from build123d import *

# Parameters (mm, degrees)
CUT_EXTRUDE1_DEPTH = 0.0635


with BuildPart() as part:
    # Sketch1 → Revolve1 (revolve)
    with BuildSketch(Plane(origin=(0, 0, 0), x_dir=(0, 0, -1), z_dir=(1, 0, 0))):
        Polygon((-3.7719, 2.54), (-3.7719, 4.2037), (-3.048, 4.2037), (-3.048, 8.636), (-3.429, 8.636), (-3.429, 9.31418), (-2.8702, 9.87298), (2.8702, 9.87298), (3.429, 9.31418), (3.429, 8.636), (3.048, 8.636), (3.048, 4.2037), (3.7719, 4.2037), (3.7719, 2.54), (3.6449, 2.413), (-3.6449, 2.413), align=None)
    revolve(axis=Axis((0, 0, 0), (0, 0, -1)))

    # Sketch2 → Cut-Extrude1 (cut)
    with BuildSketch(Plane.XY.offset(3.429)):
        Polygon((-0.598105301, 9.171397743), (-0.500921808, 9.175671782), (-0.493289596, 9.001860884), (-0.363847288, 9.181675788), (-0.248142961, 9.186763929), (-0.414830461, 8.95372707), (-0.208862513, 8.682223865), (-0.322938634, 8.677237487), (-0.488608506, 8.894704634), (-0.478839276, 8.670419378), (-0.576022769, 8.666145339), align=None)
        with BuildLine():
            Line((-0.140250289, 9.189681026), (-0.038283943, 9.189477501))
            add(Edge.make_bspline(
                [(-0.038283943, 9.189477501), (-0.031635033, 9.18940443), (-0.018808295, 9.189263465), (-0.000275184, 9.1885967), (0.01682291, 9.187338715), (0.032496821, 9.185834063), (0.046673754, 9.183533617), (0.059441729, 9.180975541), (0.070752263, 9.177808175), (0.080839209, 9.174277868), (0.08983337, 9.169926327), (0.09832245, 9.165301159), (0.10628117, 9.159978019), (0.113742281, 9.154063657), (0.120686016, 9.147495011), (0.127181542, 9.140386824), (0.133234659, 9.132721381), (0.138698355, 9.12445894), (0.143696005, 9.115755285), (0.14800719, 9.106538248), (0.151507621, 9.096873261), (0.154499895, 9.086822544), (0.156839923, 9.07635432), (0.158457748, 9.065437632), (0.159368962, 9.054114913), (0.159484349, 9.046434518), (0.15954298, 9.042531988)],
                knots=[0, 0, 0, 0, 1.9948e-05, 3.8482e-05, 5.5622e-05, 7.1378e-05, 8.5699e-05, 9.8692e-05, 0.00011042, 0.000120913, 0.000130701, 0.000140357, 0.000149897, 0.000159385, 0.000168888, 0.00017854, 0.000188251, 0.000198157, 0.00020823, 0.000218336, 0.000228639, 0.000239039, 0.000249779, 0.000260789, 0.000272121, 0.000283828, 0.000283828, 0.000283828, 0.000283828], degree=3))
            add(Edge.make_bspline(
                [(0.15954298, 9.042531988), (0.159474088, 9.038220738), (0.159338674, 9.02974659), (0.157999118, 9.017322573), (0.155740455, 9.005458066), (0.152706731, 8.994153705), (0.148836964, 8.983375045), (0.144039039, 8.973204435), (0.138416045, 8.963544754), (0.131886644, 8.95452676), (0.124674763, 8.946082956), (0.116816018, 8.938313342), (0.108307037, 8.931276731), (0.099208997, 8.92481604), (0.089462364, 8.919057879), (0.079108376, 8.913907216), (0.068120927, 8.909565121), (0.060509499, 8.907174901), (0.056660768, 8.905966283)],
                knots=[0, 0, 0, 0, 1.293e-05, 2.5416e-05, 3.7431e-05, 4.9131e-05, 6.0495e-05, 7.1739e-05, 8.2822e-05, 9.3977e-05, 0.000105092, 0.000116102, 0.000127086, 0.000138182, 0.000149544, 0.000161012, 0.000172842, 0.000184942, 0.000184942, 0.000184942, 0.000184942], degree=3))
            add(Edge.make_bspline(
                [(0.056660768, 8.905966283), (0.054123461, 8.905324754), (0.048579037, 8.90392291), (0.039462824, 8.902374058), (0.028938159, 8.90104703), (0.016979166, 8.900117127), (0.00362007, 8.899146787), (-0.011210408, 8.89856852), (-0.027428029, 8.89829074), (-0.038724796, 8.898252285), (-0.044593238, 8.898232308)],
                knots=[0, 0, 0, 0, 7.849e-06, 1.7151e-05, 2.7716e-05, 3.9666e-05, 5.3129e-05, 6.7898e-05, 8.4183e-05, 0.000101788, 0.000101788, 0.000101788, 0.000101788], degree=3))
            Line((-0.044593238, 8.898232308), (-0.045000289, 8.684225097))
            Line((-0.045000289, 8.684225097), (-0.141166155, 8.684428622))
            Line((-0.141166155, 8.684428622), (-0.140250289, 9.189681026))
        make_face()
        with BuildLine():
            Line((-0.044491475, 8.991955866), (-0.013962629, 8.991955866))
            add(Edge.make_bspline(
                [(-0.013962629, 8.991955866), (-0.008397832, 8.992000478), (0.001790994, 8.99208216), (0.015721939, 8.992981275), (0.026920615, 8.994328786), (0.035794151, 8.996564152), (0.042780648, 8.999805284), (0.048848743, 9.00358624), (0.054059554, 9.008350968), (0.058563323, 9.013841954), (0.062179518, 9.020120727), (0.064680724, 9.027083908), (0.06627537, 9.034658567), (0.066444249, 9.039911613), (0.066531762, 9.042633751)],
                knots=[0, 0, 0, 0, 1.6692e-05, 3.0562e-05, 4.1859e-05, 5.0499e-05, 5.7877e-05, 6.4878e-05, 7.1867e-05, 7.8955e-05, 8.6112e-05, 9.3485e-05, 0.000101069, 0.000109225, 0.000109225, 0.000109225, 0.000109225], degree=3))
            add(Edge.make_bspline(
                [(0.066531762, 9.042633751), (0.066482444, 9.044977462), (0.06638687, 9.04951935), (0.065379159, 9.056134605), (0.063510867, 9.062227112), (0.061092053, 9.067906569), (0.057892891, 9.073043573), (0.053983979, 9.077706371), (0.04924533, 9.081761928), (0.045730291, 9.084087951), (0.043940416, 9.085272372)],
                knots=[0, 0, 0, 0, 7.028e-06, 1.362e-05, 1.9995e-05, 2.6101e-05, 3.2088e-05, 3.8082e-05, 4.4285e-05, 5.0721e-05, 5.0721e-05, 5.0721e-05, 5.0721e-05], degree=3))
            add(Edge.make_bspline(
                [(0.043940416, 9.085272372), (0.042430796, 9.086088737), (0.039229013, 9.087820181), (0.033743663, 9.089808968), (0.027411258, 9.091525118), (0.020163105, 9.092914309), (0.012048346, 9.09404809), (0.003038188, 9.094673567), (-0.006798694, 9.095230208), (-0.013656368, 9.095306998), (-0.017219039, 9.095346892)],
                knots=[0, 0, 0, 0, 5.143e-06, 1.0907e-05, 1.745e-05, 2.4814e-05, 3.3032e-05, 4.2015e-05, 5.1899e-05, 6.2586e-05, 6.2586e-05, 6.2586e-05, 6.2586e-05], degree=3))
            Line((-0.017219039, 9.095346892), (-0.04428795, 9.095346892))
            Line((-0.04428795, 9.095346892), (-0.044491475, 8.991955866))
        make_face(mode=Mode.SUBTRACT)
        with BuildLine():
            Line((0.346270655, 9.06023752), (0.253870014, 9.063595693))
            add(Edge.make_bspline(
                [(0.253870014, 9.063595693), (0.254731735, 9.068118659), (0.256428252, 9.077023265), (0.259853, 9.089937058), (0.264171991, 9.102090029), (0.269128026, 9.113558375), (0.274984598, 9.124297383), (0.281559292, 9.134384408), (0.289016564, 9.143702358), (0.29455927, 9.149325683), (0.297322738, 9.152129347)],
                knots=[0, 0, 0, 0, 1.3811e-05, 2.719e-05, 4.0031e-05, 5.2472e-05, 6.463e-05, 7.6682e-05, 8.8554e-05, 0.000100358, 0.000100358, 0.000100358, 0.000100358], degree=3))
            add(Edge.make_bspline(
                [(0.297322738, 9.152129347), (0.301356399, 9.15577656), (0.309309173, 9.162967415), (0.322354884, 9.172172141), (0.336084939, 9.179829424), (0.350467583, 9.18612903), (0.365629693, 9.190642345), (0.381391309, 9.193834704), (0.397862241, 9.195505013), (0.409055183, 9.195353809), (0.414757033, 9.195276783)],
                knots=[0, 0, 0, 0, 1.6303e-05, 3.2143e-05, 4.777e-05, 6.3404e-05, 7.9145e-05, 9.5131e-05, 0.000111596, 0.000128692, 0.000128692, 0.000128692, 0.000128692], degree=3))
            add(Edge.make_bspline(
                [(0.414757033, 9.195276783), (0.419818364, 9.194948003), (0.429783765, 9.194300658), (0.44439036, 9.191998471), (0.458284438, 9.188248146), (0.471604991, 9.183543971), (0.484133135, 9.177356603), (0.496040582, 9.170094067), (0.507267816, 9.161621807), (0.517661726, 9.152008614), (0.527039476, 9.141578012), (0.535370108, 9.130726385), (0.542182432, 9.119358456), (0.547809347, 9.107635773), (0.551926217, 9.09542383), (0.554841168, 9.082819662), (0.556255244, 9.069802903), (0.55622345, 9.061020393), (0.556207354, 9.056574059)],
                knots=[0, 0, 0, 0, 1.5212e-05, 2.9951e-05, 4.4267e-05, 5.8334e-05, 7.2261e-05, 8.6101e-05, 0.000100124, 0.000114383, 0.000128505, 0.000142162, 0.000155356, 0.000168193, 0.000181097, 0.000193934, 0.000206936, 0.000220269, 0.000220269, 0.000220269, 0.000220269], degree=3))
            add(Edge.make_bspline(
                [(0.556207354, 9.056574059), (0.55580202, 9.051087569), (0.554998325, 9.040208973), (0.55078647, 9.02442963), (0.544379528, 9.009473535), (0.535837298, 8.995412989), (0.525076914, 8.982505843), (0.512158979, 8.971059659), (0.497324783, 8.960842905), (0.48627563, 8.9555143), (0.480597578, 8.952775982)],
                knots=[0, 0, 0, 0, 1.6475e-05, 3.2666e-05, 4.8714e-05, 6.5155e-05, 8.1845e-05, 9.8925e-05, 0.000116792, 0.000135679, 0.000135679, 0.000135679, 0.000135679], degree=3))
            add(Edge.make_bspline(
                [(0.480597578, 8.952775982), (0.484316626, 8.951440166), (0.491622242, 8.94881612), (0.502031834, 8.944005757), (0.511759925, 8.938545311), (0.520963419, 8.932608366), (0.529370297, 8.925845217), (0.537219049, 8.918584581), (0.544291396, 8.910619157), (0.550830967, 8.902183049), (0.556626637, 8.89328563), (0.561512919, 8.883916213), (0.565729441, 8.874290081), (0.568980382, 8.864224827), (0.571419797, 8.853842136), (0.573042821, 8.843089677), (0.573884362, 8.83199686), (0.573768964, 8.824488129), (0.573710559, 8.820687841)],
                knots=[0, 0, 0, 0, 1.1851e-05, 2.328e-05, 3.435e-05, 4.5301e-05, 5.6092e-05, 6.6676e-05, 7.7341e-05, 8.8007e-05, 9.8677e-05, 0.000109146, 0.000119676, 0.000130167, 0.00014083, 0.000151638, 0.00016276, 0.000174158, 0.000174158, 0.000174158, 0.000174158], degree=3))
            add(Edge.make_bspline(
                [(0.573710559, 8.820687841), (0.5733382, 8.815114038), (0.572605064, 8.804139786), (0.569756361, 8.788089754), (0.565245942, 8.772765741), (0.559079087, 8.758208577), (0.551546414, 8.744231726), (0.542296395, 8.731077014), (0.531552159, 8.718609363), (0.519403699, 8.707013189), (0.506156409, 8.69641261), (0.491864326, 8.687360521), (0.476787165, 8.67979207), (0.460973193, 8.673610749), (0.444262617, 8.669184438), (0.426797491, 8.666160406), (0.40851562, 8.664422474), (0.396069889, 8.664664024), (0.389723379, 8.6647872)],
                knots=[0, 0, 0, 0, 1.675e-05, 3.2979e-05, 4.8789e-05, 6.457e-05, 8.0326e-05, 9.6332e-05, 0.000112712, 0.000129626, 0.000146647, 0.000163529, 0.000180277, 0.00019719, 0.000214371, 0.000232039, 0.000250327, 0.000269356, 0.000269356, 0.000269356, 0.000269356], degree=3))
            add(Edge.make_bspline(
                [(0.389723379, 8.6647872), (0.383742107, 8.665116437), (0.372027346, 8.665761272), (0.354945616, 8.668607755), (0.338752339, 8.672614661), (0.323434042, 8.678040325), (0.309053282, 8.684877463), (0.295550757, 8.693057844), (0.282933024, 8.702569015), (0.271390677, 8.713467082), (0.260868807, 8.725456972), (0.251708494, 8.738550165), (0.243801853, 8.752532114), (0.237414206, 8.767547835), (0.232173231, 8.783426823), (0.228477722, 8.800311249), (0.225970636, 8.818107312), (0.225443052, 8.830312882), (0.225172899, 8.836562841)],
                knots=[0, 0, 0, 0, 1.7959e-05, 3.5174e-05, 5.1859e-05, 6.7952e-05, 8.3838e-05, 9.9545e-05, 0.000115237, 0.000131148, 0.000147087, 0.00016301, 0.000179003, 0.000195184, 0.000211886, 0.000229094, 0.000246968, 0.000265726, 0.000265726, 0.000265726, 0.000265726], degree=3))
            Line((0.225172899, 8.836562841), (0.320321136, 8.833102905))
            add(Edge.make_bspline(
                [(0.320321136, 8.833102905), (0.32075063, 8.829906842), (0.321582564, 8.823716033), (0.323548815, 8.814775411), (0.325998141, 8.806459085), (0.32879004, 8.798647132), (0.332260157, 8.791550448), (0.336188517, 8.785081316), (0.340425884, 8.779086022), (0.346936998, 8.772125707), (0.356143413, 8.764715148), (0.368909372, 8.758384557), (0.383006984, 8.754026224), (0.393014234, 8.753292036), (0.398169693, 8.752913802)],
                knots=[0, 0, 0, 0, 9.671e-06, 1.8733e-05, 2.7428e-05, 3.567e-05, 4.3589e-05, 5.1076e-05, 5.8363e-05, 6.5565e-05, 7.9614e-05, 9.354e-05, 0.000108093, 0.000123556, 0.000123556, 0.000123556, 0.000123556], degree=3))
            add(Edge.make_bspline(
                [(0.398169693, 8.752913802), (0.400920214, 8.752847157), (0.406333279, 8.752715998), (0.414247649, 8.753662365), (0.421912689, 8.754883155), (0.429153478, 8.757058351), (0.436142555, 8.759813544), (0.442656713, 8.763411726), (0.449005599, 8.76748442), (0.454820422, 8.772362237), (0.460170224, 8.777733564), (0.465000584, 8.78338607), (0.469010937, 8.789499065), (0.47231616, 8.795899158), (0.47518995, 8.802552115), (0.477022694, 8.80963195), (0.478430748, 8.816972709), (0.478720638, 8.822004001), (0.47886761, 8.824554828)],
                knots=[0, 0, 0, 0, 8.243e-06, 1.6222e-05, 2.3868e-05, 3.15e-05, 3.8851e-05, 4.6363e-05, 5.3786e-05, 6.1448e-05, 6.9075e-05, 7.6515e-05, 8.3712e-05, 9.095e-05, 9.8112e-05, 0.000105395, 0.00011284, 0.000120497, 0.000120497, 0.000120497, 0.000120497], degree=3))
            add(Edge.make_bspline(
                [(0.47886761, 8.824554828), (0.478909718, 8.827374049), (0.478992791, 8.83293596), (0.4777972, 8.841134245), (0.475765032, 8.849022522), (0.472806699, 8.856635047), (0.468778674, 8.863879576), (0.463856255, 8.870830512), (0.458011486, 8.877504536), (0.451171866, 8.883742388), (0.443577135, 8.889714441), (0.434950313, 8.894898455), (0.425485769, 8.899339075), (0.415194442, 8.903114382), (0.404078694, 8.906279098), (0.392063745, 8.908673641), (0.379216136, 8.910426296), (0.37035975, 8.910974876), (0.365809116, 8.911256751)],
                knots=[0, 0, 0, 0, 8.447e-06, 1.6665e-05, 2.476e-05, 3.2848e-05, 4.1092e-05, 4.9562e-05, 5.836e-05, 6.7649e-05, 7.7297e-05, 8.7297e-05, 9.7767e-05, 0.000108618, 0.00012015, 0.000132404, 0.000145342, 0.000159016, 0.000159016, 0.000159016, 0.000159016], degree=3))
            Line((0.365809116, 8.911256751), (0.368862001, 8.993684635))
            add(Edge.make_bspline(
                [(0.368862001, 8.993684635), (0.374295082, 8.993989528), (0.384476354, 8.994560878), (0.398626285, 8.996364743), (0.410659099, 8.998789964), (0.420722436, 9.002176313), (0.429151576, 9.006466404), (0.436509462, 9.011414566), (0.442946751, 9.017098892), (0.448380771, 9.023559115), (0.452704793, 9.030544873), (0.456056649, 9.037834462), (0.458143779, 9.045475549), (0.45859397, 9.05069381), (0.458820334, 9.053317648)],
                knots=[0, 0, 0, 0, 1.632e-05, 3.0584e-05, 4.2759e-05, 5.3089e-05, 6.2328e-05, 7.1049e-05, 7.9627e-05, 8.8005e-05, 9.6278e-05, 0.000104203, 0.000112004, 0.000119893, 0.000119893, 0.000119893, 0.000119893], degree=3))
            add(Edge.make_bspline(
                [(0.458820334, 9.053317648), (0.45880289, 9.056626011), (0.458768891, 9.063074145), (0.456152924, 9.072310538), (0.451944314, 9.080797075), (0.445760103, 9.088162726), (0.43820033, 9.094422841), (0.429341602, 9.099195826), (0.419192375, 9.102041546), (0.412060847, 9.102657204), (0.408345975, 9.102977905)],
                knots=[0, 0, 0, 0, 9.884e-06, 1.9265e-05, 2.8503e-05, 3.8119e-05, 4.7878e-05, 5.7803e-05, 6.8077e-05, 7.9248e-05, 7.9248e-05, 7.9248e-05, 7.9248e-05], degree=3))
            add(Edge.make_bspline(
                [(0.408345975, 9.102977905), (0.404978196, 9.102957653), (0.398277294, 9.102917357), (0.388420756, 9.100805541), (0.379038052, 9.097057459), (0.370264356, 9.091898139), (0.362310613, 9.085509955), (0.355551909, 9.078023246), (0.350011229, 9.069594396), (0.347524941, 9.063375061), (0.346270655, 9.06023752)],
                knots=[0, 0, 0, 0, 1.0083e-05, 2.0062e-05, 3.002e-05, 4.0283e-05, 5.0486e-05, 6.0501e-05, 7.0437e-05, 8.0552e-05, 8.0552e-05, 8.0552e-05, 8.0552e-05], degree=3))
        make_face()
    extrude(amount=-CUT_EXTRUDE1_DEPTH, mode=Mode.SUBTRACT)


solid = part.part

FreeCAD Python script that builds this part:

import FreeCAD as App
import Part
import Sketcher
Q = App.Units.Quantity


def add_polygon(sketch, points):
    """Adds a closed chain of lines whose ends are joined by coincident constraints."""
    first, n = sketch.GeometryCount, len(points)
    for a, b in zip(points, points[1:] + points[:1]):
        sketch.addGeometry(Part.LineSegment(App.Vector(*a, 0), App.Vector(*b, 0)), False)
    for i in range(n):
        sketch.addConstraint(Sketcher.Constraint("Coincident", first + i, 2, first + (i + 1) % n, 1))

doc = App.newDocument("Part")
body = doc.addObject("PartDesign::Body", "Body")

sketch1 = body.newObject("Sketcher::SketchObject", "Sketch")
sketch1.AttachmentSupport = (doc.getObject("YZ_Plane"), [""])
sketch1.MapMode = "FlatFace"
add_polygon(sketch1, [(4.2, 3.77), (2.54, 3.77), (2.41, 3.64), (2.41, -3.64), (2.54, -3.77), (4.2, -3.77), (4.2, -3.05), (8.64, -3.05), (8.64, -3.43), (9.31, -3.43), (9.87, -2.87), (9.87, 2.87), (9.31, 3.43), (8.64, 3.43), (8.64, 3.05), (4.2, 3.05)])
sketch1.addConstraint([
    Sketcher.Constraint("Horizontal", 0),
    Sketcher.Constraint("Vertical", 2),
    Sketcher.Constraint("Horizontal", 4),
    Sketcher.Constraint("Vertical", 5),
    Sketcher.Constraint("Horizontal", 6),
    Sketcher.Constraint("Vertical", 7),
    Sketcher.Constraint("Horizontal", 8),
    Sketcher.Constraint("Vertical", 10),
    Sketcher.Constraint("Horizontal", 12),
    Sketcher.Constraint("Vertical", 13),
    Sketcher.Constraint("Horizontal", 14),
    Sketcher.Constraint("Vertical", 15),
    Sketcher.Constraint("Symmetric", 0, 2, 3, 2, -1),
    Sketcher.Constraint("Symmetric", 8, 2, 11, 2, -1),
    Sketcher.Constraint("Symmetric", 6, 2, 13, 2, -1),
    Sketcher.Constraint("Perpendicular", 1, 3),
    Sketcher.Constraint("Perpendicular", 3, 9),
    Sketcher.Constraint("Perpendicular", 9, 11),
    Sketcher.Constraint("Vertical", 5, 2, 14, 2),
    Sketcher.Constraint("Equal", 1, 3),
    Sketcher.Constraint("DistanceX", -1, 1, 0, 2, Q("0.1 in")),
    Sketcher.Constraint("DistanceY", 2, 2, 2, 1, Q("0.287 in")),
    Sketcher.Constraint("DistanceY", 7, 2, 7, 1, Q("0.015 in")),
    Sketcher.Constraint("DistanceY", 10, 1, 10, 2, Q("0.226 in")),
    Sketcher.Constraint("DistanceY", 5, 2, -1, 1, Q("0.12 in")),
    Sketcher.Constraint("DistanceX", -1, 1, 6, 2, Q("0.34 in")),
    Sketcher.Constraint("DistanceX", 0, 2, 0, 1, Q("0.0655 in")),
    Sketcher.Constraint("DistanceX", 8, 1, 8, 2, Q("0.0267 in")),
    Sketcher.Constraint("DistanceY", 5, 1, 5, 2, Q("0.0285 in")),
])
revolution = body.newObject("PartDesign::Revolution", "Revolution")
revolution.Profile = sketch1
revolution.ReferenceAxis = (sketch1, ["V_Axis"])
revolution.Angle = 360

sketch2 = body.newObject("Sketcher::SketchObject", "Sketch001")
sketch2.AttachmentSupport = (doc.getObject("XY_Plane"), [""])
sketch2.MapMode = "FlatFace"
sketch2.AttachmentOffset = App.Placement(App.Vector(0, 0, 0.135 * 25.4), App.Rotation())
add_polygon(sketch2, [(-0.500922, 9.175672), (-0.598105, 9.171398), (-0.576023, 8.666145), (-0.478839, 8.670419), (-0.488609, 8.894705), (-0.322939, 8.677237), (-0.208863, 8.682224), (-0.41483, 8.953727), (-0.248143, 9.186764), (-0.363847, 9.181676), (-0.49329, 9.001861)])
sketch2.addGeometry(Part.LineSegment(App.Vector(-0.038284, 9.189478, 0), App.Vector(-0.14025, 9.189681, 0)), False)
sketch2.addGeometry(Part.LineSegment(App.Vector(-0.14025, 9.189681, 0), App.Vector(-0.141166, 8.684429, 0)), False)
sketch2.addGeometry(Part.LineSegment(App.Vector(-0.141166, 8.684429, 0), App.Vector(-0.045, 8.684225, 0)), False)
sketch2.addGeometry(Part.LineSegment(App.Vector(-0.045, 8.684225, 0), App.Vector(-0.044593, 8.898232, 0)), False)
sketch2.addGeometry(Part.BSplineCurve([App.Vector(0.056661, 8.905966, 0), App.Vector(0.054123, 8.905325, 0), App.Vector(0.048579, 8.903923, 0), App.Vector(0.039463, 8.902374, 0), App.Vector(0.028938, 8.901047, 0), App.Vector(0.016979, 8.900117, 0), App.Vector(0.00362, 8.899147, 0), App.Vector(-0.01121, 8.898569, 0), App.Vector(-0.027428, 8.898291, 0), App.Vector(-0.038725, 8.898252, 0), App.Vector(-0.044593, 8.898232, 0)], [4, 1, 1, 1, 1, 1, 1, 1, 4], [0, 0.000007849, 0.000017151, 0.000027716, 0.000039666, 0.000053129, 0.000067898, 0.000084183, 0.000101788], False, 3, [1, 1, 1, 1, 1, 1, 1, 1, 1, 1, 1], False), False)
sketch2.addGeometry(Part.BSplineCurve([App.Vector(0.159543, 9.042532, 0), App.Vector(0.159474, 9.038221, 0), App.Vector(0.159339, 9.029747, 0), App.Vector(0.157999, 9.017323, 0), App.Vector(0.15574, 9.005458, 0), App.Vector(0.152707, 8.994154, 0), App.Vector(0.148837, 8.983375, 0), App.Vector(0.144039, 8.973204, 0), App.Vector(0.138416, 8.963545, 0), App.Vector(0.131887, 8.954527, 0), App.Vector(0.124675, 8.946083, 0), App.Vector(0.116816, 8.938313, 0), App.Vector(0.108307, 8.931277, 0), App.Vector(0.099209, 8.924816, 0), App.Vector(0.089462, 8.919058, 0), App.Vector(0.079108, 8.913907, 0), App.Vector(0.068121, 8.909565, 0), App.Vector(0.060509, 8.907175, 0), App.Vector(0.056661, 8.905966, 0)], [4, 1, 1, 1, 1, 1, 1, 1, 1, 1, 1, 1, 1, 1, 1, 1, 4], [0, 0.00001293, 0.000025416, 0.000037431, 0.000049131, 0.000060495, 0.000071739, 0.000082822, 0.000093977, 0.000105092, 0.000116102, 0.000127086, 0.000138182, 0.000149544, 0.000161012, 0.000172842, 0.000184942], False, 3, [1, 1, 1, 1, 1, 1, 1, 1, 1, 1, 1, 1, 1, 1, 1, 1, 1, 1, 1], False), False)
sketch2.addGeometry(Part.BSplineCurve([App.Vector(-0.038284, 9.189478, 0), App.Vector(-0.031635, 9.189404, 0), App.Vector(-0.018808, 9.189263, 0), App.Vector(-0.000275, 9.188597, 0), App.Vector(0.016823, 9.187339, 0), App.Vector(0.032497, 9.185834, 0), App.Vector(0.046674, 9.183534, 0), App.Vector(0.059442, 9.180976, 0), App.Vector(0.070752, 9.177808, 0), App.Vector(0.080839, 9.174278, 0), App.Vector(0.089833, 9.169926, 0), App.Vector(0.098322, 9.165301, 0), App.Vector(0.106281, 9.159978, 0), App.Vector(0.113742, 9.154064, 0), App.Vector(0.120686, 9.147495, 0), App.Vector(0.127182, 9.140387, 0), App.Vector(0.133235, 9.132721, 0), App.Vector(0.138698, 9.124459, 0), App.Vector(0.143696, 9.115755, 0), App.Vector(0.148007, 9.106538, 0), App.Vector(0.151508, 9.096873, 0), App.Vector(0.1545, 9.086823, 0), App.Vector(0.15684, 9.076354, 0), App.Vector(0.158458, 9.065438, 0), App.Vector(0.159369, 9.054115, 0), App.Vector(0.159484, 9.046435, 0), App.Vector(0.159543, 9.042532, 0)], [4, 1, 1, 1, 1, 1, 1, 1, 1, 1, 1, 1, 1, 1, 1, 1, 1, 1, 1, 1, 1, 1, 1, 1, 4], [0, 0.000019948, 0.000038482, 0.000055622, 0.000071378, 0.000085699, 0.000098692, 0.00011042, 0.000120913, 0.000130701, 0.000140357, 0.000149897, 0.000159385, 0.000168888, 0.00017854, 0.000188251, 0.000198157, 0.00020823, 0.000218336, 0.000228639, 0.000239039, 0.000249779, 0.000260789, 0.000272121, 0.000283828], False, 3, [1, 1, 1, 1, 1, 1, 1, 1, 1, 1, 1, 1, 1, 1, 1, 1, 1, 1, 1, 1, 1, 1, 1, 1, 1, 1, 1], False), False)
sketch2.addGeometry(Part.LineSegment(App.Vector(-0.044491, 8.991956, 0), App.Vector(-0.044288, 9.095347, 0)), False)
sketch2.addGeometry(Part.LineSegment(App.Vector(-0.044288, 9.095347, 0), App.Vector(-0.017219, 9.095347, 0)), False)
sketch2.addGeometry(Part.BSplineCurve([App.Vector(0.04394, 9.085272, 0), App.Vector(0.042431, 9.086089, 0), App.Vector(0.039229, 9.08782, 0), App.Vector(0.033744, 9.089809, 0), App.Vector(0.027411, 9.091525, 0), App.Vector(0.020163, 9.092914, 0), App.Vector(0.012048, 9.094048, 0), App.Vector(0.003038, 9.094674, 0), App.Vector(-0.006799, 9.09523, 0), App.Vector(-0.013656, 9.095307, 0), App.Vector(-0.017219, 9.095347, 0)], [4, 1, 1, 1, 1, 1, 1, 1, 4], [0, 0.000005143, 0.000010907, 0.00001745, 0.000024814, 0.000033032, 0.000042015, 0.000051899, 0.000062586], False, 3, [1, 1, 1, 1, 1, 1, 1, 1, 1, 1, 1], False), False)
sketch2.addGeometry(Part.BSplineCurve([App.Vector(0.066532, 9.042634, 0), App.Vector(0.066482, 9.044977, 0), App.Vector(0.066387, 9.049519, 0), App.Vector(0.065379, 9.056135, 0), App.Vector(0.063511, 9.062227, 0), App.Vector(0.061092, 9.067907, 0), App.Vector(0.057893, 9.073044, 0), App.Vector(0.053984, 9.077706, 0), App.Vector(0.049245, 9.081762, 0), App.Vector(0.04573, 9.084088, 0), App.Vector(0.04394, 9.085272, 0)], [4, 1, 1, 1, 1, 1, 1, 1, 4], [0, 0.000007028, 0.00001362, 0.000019995, 0.000026101, 0.000032088, 0.000038082, 0.000044285, 0.000050721], False, 3, [1, 1, 1, 1, 1, 1, 1, 1, 1, 1, 1], False), False)
sketch2.addGeometry(Part.BSplineCurve([App.Vector(-0.013963, 8.991956, 0), App.Vector(-0.008398, 8.992, 0), App.Vector(0.001791, 8.992082, 0), App.Vector(0.015722, 8.992981, 0), App.Vector(0.026921, 8.994329, 0), App.Vector(0.035794, 8.996564, 0), App.Vector(0.042781, 8.999805, 0), App.Vector(0.048849, 9.003586, 0), App.Vector(0.05406, 9.008351, 0), App.Vector(0.058563, 9.013842, 0), App.Vector(0.06218, 9.020121, 0), App.Vector(0.064681, 9.027084, 0), App.Vector(0.066275, 9.034659, 0), App.Vector(0.066444, 9.039912, 0), App.Vector(0.066532, 9.042634, 0)], [4, 1, 1, 1, 1, 1, 1, 1, 1, 1, 1, 1, 4], [0, 0.000016692, 0.000030562, 0.000041859, 0.000050499, 0.000057877, 0.000064878, 0.000071867, 0.000078955, 0.000086112, 0.000093485, 0.000101069, 0.000109225], False, 3, [1, 1, 1, 1, 1, 1, 1, 1, 1, 1, 1, 1, 1, 1, 1], False), False)
sketch2.addGeometry(Part.LineSegment(App.Vector(-0.013963, 8.991956, 0), App.Vector(-0.044491, 8.991956, 0)), False)
sketch2.addGeometry(Part.LineSegment(App.Vector(0.25387, 9.063596, 0), App.Vector(0.346271, 9.060238, 0)), False)
sketch2.addGeometry(Part.BSplineCurve([App.Vector(0.408346, 9.102978, 0), App.Vector(0.404978, 9.102958, 0), App.Vector(0.398277, 9.102917, 0), App.Vector(0.388421, 9.100806, 0), App.Vector(0.379038, 9.097057, 0), App.Vector(0.370264, 9.091898, 0), App.Vector(0.362311, 9.08551, 0), App.Vector(0.355552, 9.078023, 0), App.Vector(0.350011, 9.069594, 0), App.Vector(0.347525, 9.063375, 0), App.Vector(0.346271, 9.060238, 0)], [4, 1, 1, 1, 1, 1, 1, 1, 4], [0, 0.000010083, 0.000020062, 0.00003002, 0.000040283, 0.000050486, 0.000060501, 0.000070437, 0.000080552], False, 3, [1, 1, 1, 1, 1, 1, 1, 1, 1, 1, 1], False), False)
sketch2.addGeometry(Part.BSplineCurve([App.Vector(0.45882, 9.053318, 0), App.Vector(0.458803, 9.056626, 0), App.Vector(0.458769, 9.063074, 0), App.Vector(0.456153, 9.072311, 0), App.Vector(0.451944, 9.080797, 0), App.Vector(0.44576, 9.088163, 0), App.Vector(0.4382, 9.094423, 0), App.Vector(0.429342, 9.099196, 0), App.Vector(0.419192, 9.102042, 0), App.Vector(0.412061, 9.102657, 0), App.Vector(0.408346, 9.102978, 0)], [4, 1, 1, 1, 1, 1, 1, 1, 4], [0, 0.000009884, 0.000019265, 0.000028503, 0.000038119, 0.000047878, 0.000057803, 0.000068077, 0.000079248], False, 3, [1, 1, 1, 1, 1, 1, 1, 1, 1, 1, 1], False), False)
sketch2.addGeometry(Part.BSplineCurve([App.Vector(0.368862, 8.993685, 0), App.Vector(0.374295, 8.99399, 0), App.Vector(0.384476, 8.994561, 0), App.Vector(0.398626, 8.996365, 0), App.Vector(0.410659, 8.99879, 0), App.Vector(0.420722, 9.002176, 0), App.Vector(0.429152, 9.006466, 0), App.Vector(0.436509, 9.011415, 0), App.Vector(0.442947, 9.017099, 0), App.Vector(0.448381, 9.023559, 0), App.Vector(0.452705, 9.030545, 0), App.Vector(0.456057, 9.037834, 0), App.Vector(0.458144, 9.045476, 0), App.Vector(0.458594, 9.050694, 0), App.Vector(0.45882, 9.053318, 0)], [4, 1, 1, 1, 1, 1, 1, 1, 1, 1, 1, 1, 4], [0, 0.00001632, 0.000030584, 0.000042759, 0.000053089, 0.000062328, 0.000071049, 0.000079627, 0.000088005, 0.000096278, 0.000104203, 0.000112004, 0.000119893], False, 3, [1, 1, 1, 1, 1, 1, 1, 1, 1, 1, 1, 1, 1, 1, 1], False), False)
sketch2.addGeometry(Part.LineSegment(App.Vector(0.368862, 8.993685, 0), App.Vector(0.365809, 8.911257, 0)), False)
sketch2.addGeometry(Part.BSplineCurve([App.Vector(0.478868, 8.824555, 0), App.Vector(0.47891, 8.827374, 0), App.Vector(0.478993, 8.832936, 0), App.Vector(0.477797, 8.841134, 0), App.Vector(0.475765, 8.849023, 0), App.Vector(0.472807, 8.856635, 0), App.Vector(0.468779, 8.86388, 0), App.Vector(0.463856, 8.870831, 0), App.Vector(0.458011, 8.877505, 0), App.Vector(0.451172, 8.883742, 0), App.Vector(0.443577, 8.889714, 0), App.Vector(0.43495, 8.894898, 0), App.Vector(0.425486, 8.899339, 0), App.Vector(0.415194, 8.903114, 0), App.Vector(0.404079, 8.906279, 0), App.Vector(0.392064, 8.908674, 0), App.Vector(0.379216, 8.910426, 0), App.Vector(0.37036, 8.910975, 0), App.Vector(0.365809, 8.911257, 0)], [4, 1, 1, 1, 1, 1, 1, 1, 1, 1, 1, 1, 1, 1, 1, 1, 4], [0, 0.000008447, 0.000016665, 0.00002476, 0.000032848, 0.000041092, 0.000049562, 0.00005836, 0.000067649, 0.000077297, 0.000087297, 0.000097767, 0.000108618, 0.00012015, 0.000132404, 0.000145342, 0.000159016], False, 3, [1, 1, 1, 1, 1, 1, 1, 1, 1, 1, 1, 1, 1, 1, 1, 1, 1, 1, 1], False), False)
sketch2.addGeometry(Part.BSplineCurve([App.Vector(0.39817, 8.752914, 0), App.Vector(0.40092, 8.752847, 0), App.Vector(0.406333, 8.752716, 0), App.Vector(0.414248, 8.753662, 0), App.Vector(0.421913, 8.754883, 0), App.Vector(0.429153, 8.757058, 0), App.Vector(0.436143, 8.759814, 0), App.Vector(0.442657, 8.763412, 0), App.Vector(0.449006, 8.767484, 0), App.Vector(0.45482, 8.772362, 0), App.Vector(0.46017, 8.777734, 0), App.Vector(0.465001, 8.783386, 0), App.Vector(0.469011, 8.789499, 0), App.Vector(0.472316, 8.795899, 0), App.Vector(0.47519, 8.802552, 0), App.Vector(0.477023, 8.809632, 0), App.Vector(0.478431, 8.816973, 0), App.Vector(0.478721, 8.822004, 0), App.Vector(0.478868, 8.824555, 0)], [4, 1, 1, 1, 1, 1, 1, 1, 1, 1, 1, 1, 1, 1, 1, 1, 4], [0, 0.000008243, 0.000016222, 0.000023868, 0.0000315, 0.000038851, 0.000046363, 0.000053786, 0.000061448, 0.000069075, 0.000076515, 0.000083712, 0.00009095, 0.000098112, 0.000105395, 0.00011284, 0.000120497], False, 3, [1, 1, 1, 1, 1, 1, 1, 1, 1, 1, 1, 1, 1, 1, 1, 1, 1, 1, 1], False), False)
sketch2.addGeometry(Part.BSplineCurve([App.Vector(0.320321, 8.833103, 0), App.Vector(0.320751, 8.829907, 0), App.Vector(0.321583, 8.823716, 0), App.Vector(0.323549, 8.814775, 0), App.Vector(0.325998, 8.806459, 0), App.Vector(0.32879, 8.798647, 0), App.Vector(0.33226, 8.79155, 0), App.Vector(0.336189, 8.785081, 0), App.Vector(0.340426, 8.779086, 0), App.Vector(0.346937, 8.772126, 0), App.Vector(0.356143, 8.764715, 0), App.Vector(0.368909, 8.758385, 0), App.Vector(0.383007, 8.754026, 0), App.Vector(0.393014, 8.753292, 0), App.Vector(0.39817, 8.752914, 0)], [4, 1, 1, 1, 1, 1, 1, 1, 1, 1, 1, 1, 4], [0, 0.000009671, 0.000018733, 0.000027428, 0.00003567, 0.000043589, 0.000051076, 0.000058363, 0.000065565, 0.000079614, 0.00009354, 0.000108093, 0.000123556], False, 3, [1, 1, 1, 1, 1, 1, 1, 1, 1, 1, 1, 1, 1, 1, 1], False), False)
sketch2.addGeometry(Part.LineSegment(App.Vector(0.320321, 8.833103, 0), App.Vector(0.225173, 8.836563, 0)), False)
sketch2.addGeometry(Part.BSplineCurve([App.Vector(0.389723, 8.664787, 0), App.Vector(0.383742, 8.665116, 0), App.Vector(0.372027, 8.665761, 0), App.Vector(0.354946, 8.668608, 0), App.Vector(0.338752, 8.672615, 0), App.Vector(0.323434, 8.67804, 0), App.Vector(0.309053, 8.684877, 0), App.Vector(0.295551, 8.693058, 0), App.Vector(0.282933, 8.702569, 0), App.Vector(0.271391, 8.713467, 0), App.Vector(0.260869, 8.725457, 0), App.Vector(0.251708, 8.73855, 0), App.Vector(0.243802, 8.752532, 0), App.Vector(0.237414, 8.767548, 0), App.Vector(0.232173, 8.783427, 0), App.Vector(0.228478, 8.800311, 0), App.Vector(0.225971, 8.818107, 0), App.Vector(0.225443, 8.830313, 0), App.Vector(0.225173, 8.836563, 0)], [4, 1, 1, 1, 1, 1, 1, 1, 1, 1, 1, 1, 1, 1, 1, 1, 4], [0, 0.000017959, 0.000035174, 0.000051859, 0.000067952, 0.000083838, 0.000099545, 0.000115237, 0.000131148, 0.000147087, 0.00016301, 0.000179003, 0.000195184, 0.000211886, 0.000229094, 0.000246968, 0.000265726], False, 3, [1, 1, 1, 1, 1, 1, 1, 1, 1, 1, 1, 1, 1, 1, 1, 1, 1, 1, 1], False), False)
sketch2.addGeometry(Part.BSplineCurve([App.Vector(0.573711, 8.820688, 0), App.Vector(0.573338, 8.815114, 0), App.Vector(0.572605, 8.80414, 0), App.Vector(0.569756, 8.78809, 0), App.Vector(0.565246, 8.772766, 0), App.Vector(0.559079, 8.758209, 0), App.Vector(0.551546, 8.744232, 0), App.Vector(0.542296, 8.731077, 0), App.Vector(0.531552, 8.718609, 0), App.Vector(0.519404, 8.707013, 0), App.Vector(0.506156, 8.696413, 0), App.Vector(0.491864, 8.687361, 0), App.Vector(0.476787, 8.679792, 0), App.Vector(0.460973, 8.673611, 0), App.Vector(0.444263, 8.669184, 0), App.Vector(0.426797, 8.66616, 0), App.Vector(0.408516, 8.664422, 0), App.Vector(0.39607, 8.664664, 0), App.Vector(0.389723, 8.664787, 0)], [4, 1, 1, 1, 1, 1, 1, 1, 1, 1, 1, 1, 1, 1, 1, 1, 4], [0, 0.00001675, 0.000032979, 0.000048789, 0.00006457, 0.000080326, 0.000096332, 0.000112712, 0.000129626, 0.000146647, 0.000163529, 0.000180277, 0.00019719, 0.000214371, 0.000232039, 0.000250327, 0.000269356], False, 3, [1, 1, 1, 1, 1, 1, 1, 1, 1, 1, 1, 1, 1, 1, 1, 1, 1, 1, 1], False), False)
sketch2.addGeometry(Part.BSplineCurve([App.Vector(0.480598, 8.952776, 0), App.Vector(0.484317, 8.95144, 0), App.Vector(0.491622, 8.948816, 0), App.Vector(0.502032, 8.944006, 0), App.Vector(0.51176, 8.938545, 0), App.Vector(0.520963, 8.932608, 0), App.Vector(0.52937, 8.925845, 0), App.Vector(0.537219, 8.918585, 0), App.Vector(0.544291, 8.910619, 0), App.Vector(0.550831, 8.902183, 0), App.Vector(0.556627, 8.893286, 0), App.Vector(0.561513, 8.883916, 0), App.Vector(0.565729, 8.87429, 0), App.Vector(0.56898, 8.864225, 0), App.Vector(0.57142, 8.853842, 0), App.Vector(0.573043, 8.84309, 0), App.Vector(0.573884, 8.831997, 0), App.Vector(0.573769, 8.824488, 0), App.Vector(0.573711, 8.820688, 0)], [4, 1, 1, 1, 1, 1, 1, 1, 1, 1, 1, 1, 1, 1, 1, 1, 4], [0, 0.000011851, 0.00002328, 0.00003435, 0.000045301, 0.000056092, 0.000066676, 0.000077341, 0.000088007, 0.000098677, 0.000109146, 0.000119676, 0.000130167, 0.00014083, 0.000151638, 0.00016276, 0.000174158], False, 3, [1, 1, 1, 1, 1, 1, 1, 1, 1, 1, 1, 1, 1, 1, 1, 1, 1, 1, 1], False), False)
sketch2.addGeometry(Part.BSplineCurve([App.Vector(0.556207, 9.056574, 0), App.Vector(0.555802, 9.051088, 0), App.Vector(0.554998, 9.040209, 0), App.Vector(0.550786, 9.02443, 0), App.Vector(0.54438, 9.009474, 0), App.Vector(0.535837, 8.995413, 0), App.Vector(0.525077, 8.982506, 0), App.Vector(0.512159, 8.97106, 0), App.Vector(0.497325, 8.960843, 0), App.Vector(0.486276, 8.955514, 0), App.Vector(0.480598, 8.952776, 0)], [4, 1, 1, 1, 1, 1, 1, 1, 4], [0, 0.000016475, 0.000032666, 0.000048714, 0.000065155, 0.000081845, 0.000098925, 0.000116792, 0.000135679], False, 3, [1, 1, 1, 1, 1, 1, 1, 1, 1, 1, 1], False), False)
sketch2.addGeometry(Part.BSplineCurve([App.Vector(0.414757, 9.195277, 0), App.Vector(0.419818, 9.194948, 0), App.Vector(0.429784, 9.194301, 0), App.Vector(0.44439, 9.191998, 0), App.Vector(0.458284, 9.188248, 0), App.Vector(0.471605, 9.183544, 0), App.Vector(0.484133, 9.177357, 0), App.Vector(0.496041, 9.170094, 0), App.Vector(0.507268, 9.161622, 0), App.Vector(0.517662, 9.152009, 0), App.Vector(0.527039, 9.141578, 0), App.Vector(0.53537, 9.130726, 0), App.Vector(0.542182, 9.119358, 0), App.Vector(0.547809, 9.107636, 0), App.Vector(0.551926, 9.095424, 0), App.Vector(0.554841, 9.08282, 0), App.Vector(0.556255, 9.069803, 0), App.Vector(0.556223, 9.06102, 0), App.Vector(0.556207, 9.056574, 0)], [4, 1, 1, 1, 1, 1, 1, 1, 1, 1, 1, 1, 1, 1, 1, 1, 4], [0, 0.000015212, 0.000029951, 0.000044267, 0.000058334, 0.000072261, 0.000086101, 0.000100124, 0.000114383, 0.000128505, 0.000142162, 0.000155356, 0.000168193, 0.000181097, 0.000193934, 0.000206936, 0.000220269], False, 3, [1, 1, 1, 1, 1, 1, 1, 1, 1, 1, 1, 1, 1, 1, 1, 1, 1, 1, 1], False), False)
sketch2.addGeometry(Part.BSplineCurve([App.Vector(0.297323, 9.152129, 0), App.Vector(0.301356, 9.155777, 0), App.Vector(0.309309, 9.162967, 0), App.Vector(0.322355, 9.172172, 0), App.Vector(0.336085, 9.179829, 0), App.Vector(0.350468, 9.186129, 0), App.Vector(0.36563, 9.190642, 0), App.Vector(0.381391, 9.193835, 0), App.Vector(0.397862, 9.195505, 0), App.Vector(0.409055, 9.195354, 0), App.Vector(0.414757, 9.195277, 0)], [4, 1, 1, 1, 1, 1, 1, 1, 4], [0, 0.000016303, 0.000032143, 0.00004777, 0.000063404, 0.000079145, 0.000095131, 0.000111596, 0.000128692], False, 3, [1, 1, 1, 1, 1, 1, 1, 1, 1, 1, 1], False), False)
sketch2.addGeometry(Part.BSplineCurve([App.Vector(0.25387, 9.063596, 0), App.Vector(0.254732, 9.068119, 0), App.Vector(0.256428, 9.077023, 0), App.Vector(0.259853, 9.089937, 0), App.Vector(0.264172, 9.10209, 0), App.Vector(0.269128, 9.113558, 0), App.Vector(0.274985, 9.124297, 0), App.Vector(0.281559, 9.134384, 0), App.Vector(0.289017, 9.143702, 0), App.Vector(0.294559, 9.149326, 0), App.Vector(0.297323, 9.152129, 0)], [4, 1, 1, 1, 1, 1, 1, 1, 4], [0, 0.000013811, 0.00002719, 0.000040031, 0.000052472, 0.00006463, 0.000076682, 0.000088554, 0.000100358], False, 3, [1, 1, 1, 1, 1, 1, 1, 1, 1, 1, 1], False), False)
sketch2.addConstraint([
    Sketcher.Constraint("Block", 15),
    Sketcher.Constraint("Block", 16),
    Sketcher.Constraint("Block", 17),
    Sketcher.Constraint("Block", 20),
    Sketcher.Constraint("Block", 21),
    Sketcher.Constraint("Block", 22),
    Sketcher.Constraint("Block", 25),
    Sketcher.Constraint("Block", 26),
    Sketcher.Constraint("Block", 27),
    Sketcher.Constraint("Block", 29),
    Sketcher.Constraint("Block", 30),
    Sketcher.Constraint("Block", 31),
    Sketcher.Constraint("Block", 33),
    Sketcher.Constraint("Block", 34),
    Sketcher.Constraint("Block", 35),
    Sketcher.Constraint("Block", 36),
    Sketcher.Constraint("Block", 37),
    Sketcher.Constraint("Block", 38),
    Sketcher.Constraint("Block", 39),
    Sketcher.Constraint("Coincident", 11, 2, 12, 1),
    Sketcher.Constraint("Coincident", 12, 2, 13, 1),
    Sketcher.Constraint("Coincident", 13, 2, 14, 1),
    Sketcher.Constraint("Coincident", 14, 2, 15, 2),
    Sketcher.Constraint("Coincident", 17, 1, 11, 1),
    Sketcher.Constraint("Coincident", 18, 2, 19, 1),
    Sketcher.Constraint("Coincident", 19, 2, 20, 2),
    Sketcher.Constraint("Coincident", 22, 1, 23, 1),
    Sketcher.Constraint("Coincident", 23, 2, 18, 1),
    Sketcher.Constraint("Coincident", 24, 2, 25, 2),
    Sketcher.Constraint("Coincident", 27, 1, 28, 1),
    Sketcher.Constraint("Coincident", 28, 2, 29, 2),
    Sketcher.Constraint("Coincident", 31, 1, 32, 1),
    Sketcher.Constraint("Coincident", 32, 2, 33, 2),
    Sketcher.Constraint("Coincident", 39, 1, 24, 1),
    Sketcher.Constraint("Horizontal", 19),
    Sketcher.Constraint("Horizontal", 23),
    Sketcher.Constraint("Parallel", 0, 2),
    Sketcher.Constraint("Equal", 0, 2),
    Sketcher.Constraint("DistanceX", 19, 1, 19, 2, Q("0.027069 mm")),
    Sketcher.Constraint("DistanceX", 23, 2, 23, 1, Q("0.030529 mm")),
    Sketcher.Constraint("DistanceX", 13, 2, -1, 1, Q("0.045 mm")),
    Sketcher.Constraint("DistanceX", 2, 2, 4, 2, Q("0.155901 mm")),
    Sketcher.Constraint("DistanceY", 12, 2, 6, 2, Q("0.269298 mm")),
    Sketcher.Constraint("DistanceY", 5, 2, 13, 2, Q("0.002001 mm")),
    Sketcher.Constraint("DistanceY", 13, 2, 6, 2, Q("0.269502 mm")),
    Sketcher.Constraint("Distance", 6, Q("0.340788 mm")),
    Sketcher.Constraint("Distance", 9, Q("0.22156 mm")),
    Sketcher.Constraint("Distance", 10, Q("0.173978 mm")),
    Sketcher.Constraint("DistanceX", 2, 2, -1, 1, Q("0.478839 mm")),
    Sketcher.Constraint("DistanceY", -1, 1, 2, 2, Q("8.670419 mm")),
    Sketcher.Constraint("DistanceX", 3, 2, -1, 1, Q("0.488609 mm")),
    Sketcher.Constraint("DistanceX", 6, 2, -1, 1, Q("0.41483 mm")),
    Sketcher.Constraint("DistanceX", 9, 2, -1, 1, Q("0.49329 mm")),
    Sketcher.Constraint("DistanceY", -1, 1, 9, 2, Q("9.001861 mm")),
    Sketcher.Constraint("DistanceX", 10, 2, -1, 1, Q("0.500922 mm")),
    Sketcher.Constraint("DistanceX", 11, 2, -1, 1, Q("0.14025 mm")),
    Sketcher.Constraint("DistanceY", -1, 1, 11, 2, Q("9.189681 mm")),
    Sketcher.Constraint("DistanceY", -1, 1, 12, 2, Q("8.684429 mm")),
    Sketcher.Constraint("DistanceY", 2, 2, 0, 2, Q("0.500978 mm")),
    Sketcher.Constraint("DistanceY", 1, 2, 3, 2, Q("0.228559 mm")),
    Sketcher.Constraint("DistanceY", 2, 2, 4, 2, Q("0.006818 mm")),
    Sketcher.Constraint("DistanceX", 1, 2, 5, 2, Q("0.36716 mm")),
    Sketcher.Constraint("DistanceY", 3, 2, 7, 2, Q("0.292059 mm")),
    Sketcher.Constraint("DistanceX", 7, 2, 5, 2, Q("0.03928 mm")),
    Sketcher.Constraint("DistanceY", 8, 2, 7, 2, Q("0.005088 mm")),
    Sketcher.Constraint("Distance", 13, Q("0.096166 mm")),
])
pocket1 = body.newObject("PartDesign::Pocket", "Pocket")
pocket1.Profile = sketch2
pocket1.Length = Q("0.0025 in")

doc.recompute()
